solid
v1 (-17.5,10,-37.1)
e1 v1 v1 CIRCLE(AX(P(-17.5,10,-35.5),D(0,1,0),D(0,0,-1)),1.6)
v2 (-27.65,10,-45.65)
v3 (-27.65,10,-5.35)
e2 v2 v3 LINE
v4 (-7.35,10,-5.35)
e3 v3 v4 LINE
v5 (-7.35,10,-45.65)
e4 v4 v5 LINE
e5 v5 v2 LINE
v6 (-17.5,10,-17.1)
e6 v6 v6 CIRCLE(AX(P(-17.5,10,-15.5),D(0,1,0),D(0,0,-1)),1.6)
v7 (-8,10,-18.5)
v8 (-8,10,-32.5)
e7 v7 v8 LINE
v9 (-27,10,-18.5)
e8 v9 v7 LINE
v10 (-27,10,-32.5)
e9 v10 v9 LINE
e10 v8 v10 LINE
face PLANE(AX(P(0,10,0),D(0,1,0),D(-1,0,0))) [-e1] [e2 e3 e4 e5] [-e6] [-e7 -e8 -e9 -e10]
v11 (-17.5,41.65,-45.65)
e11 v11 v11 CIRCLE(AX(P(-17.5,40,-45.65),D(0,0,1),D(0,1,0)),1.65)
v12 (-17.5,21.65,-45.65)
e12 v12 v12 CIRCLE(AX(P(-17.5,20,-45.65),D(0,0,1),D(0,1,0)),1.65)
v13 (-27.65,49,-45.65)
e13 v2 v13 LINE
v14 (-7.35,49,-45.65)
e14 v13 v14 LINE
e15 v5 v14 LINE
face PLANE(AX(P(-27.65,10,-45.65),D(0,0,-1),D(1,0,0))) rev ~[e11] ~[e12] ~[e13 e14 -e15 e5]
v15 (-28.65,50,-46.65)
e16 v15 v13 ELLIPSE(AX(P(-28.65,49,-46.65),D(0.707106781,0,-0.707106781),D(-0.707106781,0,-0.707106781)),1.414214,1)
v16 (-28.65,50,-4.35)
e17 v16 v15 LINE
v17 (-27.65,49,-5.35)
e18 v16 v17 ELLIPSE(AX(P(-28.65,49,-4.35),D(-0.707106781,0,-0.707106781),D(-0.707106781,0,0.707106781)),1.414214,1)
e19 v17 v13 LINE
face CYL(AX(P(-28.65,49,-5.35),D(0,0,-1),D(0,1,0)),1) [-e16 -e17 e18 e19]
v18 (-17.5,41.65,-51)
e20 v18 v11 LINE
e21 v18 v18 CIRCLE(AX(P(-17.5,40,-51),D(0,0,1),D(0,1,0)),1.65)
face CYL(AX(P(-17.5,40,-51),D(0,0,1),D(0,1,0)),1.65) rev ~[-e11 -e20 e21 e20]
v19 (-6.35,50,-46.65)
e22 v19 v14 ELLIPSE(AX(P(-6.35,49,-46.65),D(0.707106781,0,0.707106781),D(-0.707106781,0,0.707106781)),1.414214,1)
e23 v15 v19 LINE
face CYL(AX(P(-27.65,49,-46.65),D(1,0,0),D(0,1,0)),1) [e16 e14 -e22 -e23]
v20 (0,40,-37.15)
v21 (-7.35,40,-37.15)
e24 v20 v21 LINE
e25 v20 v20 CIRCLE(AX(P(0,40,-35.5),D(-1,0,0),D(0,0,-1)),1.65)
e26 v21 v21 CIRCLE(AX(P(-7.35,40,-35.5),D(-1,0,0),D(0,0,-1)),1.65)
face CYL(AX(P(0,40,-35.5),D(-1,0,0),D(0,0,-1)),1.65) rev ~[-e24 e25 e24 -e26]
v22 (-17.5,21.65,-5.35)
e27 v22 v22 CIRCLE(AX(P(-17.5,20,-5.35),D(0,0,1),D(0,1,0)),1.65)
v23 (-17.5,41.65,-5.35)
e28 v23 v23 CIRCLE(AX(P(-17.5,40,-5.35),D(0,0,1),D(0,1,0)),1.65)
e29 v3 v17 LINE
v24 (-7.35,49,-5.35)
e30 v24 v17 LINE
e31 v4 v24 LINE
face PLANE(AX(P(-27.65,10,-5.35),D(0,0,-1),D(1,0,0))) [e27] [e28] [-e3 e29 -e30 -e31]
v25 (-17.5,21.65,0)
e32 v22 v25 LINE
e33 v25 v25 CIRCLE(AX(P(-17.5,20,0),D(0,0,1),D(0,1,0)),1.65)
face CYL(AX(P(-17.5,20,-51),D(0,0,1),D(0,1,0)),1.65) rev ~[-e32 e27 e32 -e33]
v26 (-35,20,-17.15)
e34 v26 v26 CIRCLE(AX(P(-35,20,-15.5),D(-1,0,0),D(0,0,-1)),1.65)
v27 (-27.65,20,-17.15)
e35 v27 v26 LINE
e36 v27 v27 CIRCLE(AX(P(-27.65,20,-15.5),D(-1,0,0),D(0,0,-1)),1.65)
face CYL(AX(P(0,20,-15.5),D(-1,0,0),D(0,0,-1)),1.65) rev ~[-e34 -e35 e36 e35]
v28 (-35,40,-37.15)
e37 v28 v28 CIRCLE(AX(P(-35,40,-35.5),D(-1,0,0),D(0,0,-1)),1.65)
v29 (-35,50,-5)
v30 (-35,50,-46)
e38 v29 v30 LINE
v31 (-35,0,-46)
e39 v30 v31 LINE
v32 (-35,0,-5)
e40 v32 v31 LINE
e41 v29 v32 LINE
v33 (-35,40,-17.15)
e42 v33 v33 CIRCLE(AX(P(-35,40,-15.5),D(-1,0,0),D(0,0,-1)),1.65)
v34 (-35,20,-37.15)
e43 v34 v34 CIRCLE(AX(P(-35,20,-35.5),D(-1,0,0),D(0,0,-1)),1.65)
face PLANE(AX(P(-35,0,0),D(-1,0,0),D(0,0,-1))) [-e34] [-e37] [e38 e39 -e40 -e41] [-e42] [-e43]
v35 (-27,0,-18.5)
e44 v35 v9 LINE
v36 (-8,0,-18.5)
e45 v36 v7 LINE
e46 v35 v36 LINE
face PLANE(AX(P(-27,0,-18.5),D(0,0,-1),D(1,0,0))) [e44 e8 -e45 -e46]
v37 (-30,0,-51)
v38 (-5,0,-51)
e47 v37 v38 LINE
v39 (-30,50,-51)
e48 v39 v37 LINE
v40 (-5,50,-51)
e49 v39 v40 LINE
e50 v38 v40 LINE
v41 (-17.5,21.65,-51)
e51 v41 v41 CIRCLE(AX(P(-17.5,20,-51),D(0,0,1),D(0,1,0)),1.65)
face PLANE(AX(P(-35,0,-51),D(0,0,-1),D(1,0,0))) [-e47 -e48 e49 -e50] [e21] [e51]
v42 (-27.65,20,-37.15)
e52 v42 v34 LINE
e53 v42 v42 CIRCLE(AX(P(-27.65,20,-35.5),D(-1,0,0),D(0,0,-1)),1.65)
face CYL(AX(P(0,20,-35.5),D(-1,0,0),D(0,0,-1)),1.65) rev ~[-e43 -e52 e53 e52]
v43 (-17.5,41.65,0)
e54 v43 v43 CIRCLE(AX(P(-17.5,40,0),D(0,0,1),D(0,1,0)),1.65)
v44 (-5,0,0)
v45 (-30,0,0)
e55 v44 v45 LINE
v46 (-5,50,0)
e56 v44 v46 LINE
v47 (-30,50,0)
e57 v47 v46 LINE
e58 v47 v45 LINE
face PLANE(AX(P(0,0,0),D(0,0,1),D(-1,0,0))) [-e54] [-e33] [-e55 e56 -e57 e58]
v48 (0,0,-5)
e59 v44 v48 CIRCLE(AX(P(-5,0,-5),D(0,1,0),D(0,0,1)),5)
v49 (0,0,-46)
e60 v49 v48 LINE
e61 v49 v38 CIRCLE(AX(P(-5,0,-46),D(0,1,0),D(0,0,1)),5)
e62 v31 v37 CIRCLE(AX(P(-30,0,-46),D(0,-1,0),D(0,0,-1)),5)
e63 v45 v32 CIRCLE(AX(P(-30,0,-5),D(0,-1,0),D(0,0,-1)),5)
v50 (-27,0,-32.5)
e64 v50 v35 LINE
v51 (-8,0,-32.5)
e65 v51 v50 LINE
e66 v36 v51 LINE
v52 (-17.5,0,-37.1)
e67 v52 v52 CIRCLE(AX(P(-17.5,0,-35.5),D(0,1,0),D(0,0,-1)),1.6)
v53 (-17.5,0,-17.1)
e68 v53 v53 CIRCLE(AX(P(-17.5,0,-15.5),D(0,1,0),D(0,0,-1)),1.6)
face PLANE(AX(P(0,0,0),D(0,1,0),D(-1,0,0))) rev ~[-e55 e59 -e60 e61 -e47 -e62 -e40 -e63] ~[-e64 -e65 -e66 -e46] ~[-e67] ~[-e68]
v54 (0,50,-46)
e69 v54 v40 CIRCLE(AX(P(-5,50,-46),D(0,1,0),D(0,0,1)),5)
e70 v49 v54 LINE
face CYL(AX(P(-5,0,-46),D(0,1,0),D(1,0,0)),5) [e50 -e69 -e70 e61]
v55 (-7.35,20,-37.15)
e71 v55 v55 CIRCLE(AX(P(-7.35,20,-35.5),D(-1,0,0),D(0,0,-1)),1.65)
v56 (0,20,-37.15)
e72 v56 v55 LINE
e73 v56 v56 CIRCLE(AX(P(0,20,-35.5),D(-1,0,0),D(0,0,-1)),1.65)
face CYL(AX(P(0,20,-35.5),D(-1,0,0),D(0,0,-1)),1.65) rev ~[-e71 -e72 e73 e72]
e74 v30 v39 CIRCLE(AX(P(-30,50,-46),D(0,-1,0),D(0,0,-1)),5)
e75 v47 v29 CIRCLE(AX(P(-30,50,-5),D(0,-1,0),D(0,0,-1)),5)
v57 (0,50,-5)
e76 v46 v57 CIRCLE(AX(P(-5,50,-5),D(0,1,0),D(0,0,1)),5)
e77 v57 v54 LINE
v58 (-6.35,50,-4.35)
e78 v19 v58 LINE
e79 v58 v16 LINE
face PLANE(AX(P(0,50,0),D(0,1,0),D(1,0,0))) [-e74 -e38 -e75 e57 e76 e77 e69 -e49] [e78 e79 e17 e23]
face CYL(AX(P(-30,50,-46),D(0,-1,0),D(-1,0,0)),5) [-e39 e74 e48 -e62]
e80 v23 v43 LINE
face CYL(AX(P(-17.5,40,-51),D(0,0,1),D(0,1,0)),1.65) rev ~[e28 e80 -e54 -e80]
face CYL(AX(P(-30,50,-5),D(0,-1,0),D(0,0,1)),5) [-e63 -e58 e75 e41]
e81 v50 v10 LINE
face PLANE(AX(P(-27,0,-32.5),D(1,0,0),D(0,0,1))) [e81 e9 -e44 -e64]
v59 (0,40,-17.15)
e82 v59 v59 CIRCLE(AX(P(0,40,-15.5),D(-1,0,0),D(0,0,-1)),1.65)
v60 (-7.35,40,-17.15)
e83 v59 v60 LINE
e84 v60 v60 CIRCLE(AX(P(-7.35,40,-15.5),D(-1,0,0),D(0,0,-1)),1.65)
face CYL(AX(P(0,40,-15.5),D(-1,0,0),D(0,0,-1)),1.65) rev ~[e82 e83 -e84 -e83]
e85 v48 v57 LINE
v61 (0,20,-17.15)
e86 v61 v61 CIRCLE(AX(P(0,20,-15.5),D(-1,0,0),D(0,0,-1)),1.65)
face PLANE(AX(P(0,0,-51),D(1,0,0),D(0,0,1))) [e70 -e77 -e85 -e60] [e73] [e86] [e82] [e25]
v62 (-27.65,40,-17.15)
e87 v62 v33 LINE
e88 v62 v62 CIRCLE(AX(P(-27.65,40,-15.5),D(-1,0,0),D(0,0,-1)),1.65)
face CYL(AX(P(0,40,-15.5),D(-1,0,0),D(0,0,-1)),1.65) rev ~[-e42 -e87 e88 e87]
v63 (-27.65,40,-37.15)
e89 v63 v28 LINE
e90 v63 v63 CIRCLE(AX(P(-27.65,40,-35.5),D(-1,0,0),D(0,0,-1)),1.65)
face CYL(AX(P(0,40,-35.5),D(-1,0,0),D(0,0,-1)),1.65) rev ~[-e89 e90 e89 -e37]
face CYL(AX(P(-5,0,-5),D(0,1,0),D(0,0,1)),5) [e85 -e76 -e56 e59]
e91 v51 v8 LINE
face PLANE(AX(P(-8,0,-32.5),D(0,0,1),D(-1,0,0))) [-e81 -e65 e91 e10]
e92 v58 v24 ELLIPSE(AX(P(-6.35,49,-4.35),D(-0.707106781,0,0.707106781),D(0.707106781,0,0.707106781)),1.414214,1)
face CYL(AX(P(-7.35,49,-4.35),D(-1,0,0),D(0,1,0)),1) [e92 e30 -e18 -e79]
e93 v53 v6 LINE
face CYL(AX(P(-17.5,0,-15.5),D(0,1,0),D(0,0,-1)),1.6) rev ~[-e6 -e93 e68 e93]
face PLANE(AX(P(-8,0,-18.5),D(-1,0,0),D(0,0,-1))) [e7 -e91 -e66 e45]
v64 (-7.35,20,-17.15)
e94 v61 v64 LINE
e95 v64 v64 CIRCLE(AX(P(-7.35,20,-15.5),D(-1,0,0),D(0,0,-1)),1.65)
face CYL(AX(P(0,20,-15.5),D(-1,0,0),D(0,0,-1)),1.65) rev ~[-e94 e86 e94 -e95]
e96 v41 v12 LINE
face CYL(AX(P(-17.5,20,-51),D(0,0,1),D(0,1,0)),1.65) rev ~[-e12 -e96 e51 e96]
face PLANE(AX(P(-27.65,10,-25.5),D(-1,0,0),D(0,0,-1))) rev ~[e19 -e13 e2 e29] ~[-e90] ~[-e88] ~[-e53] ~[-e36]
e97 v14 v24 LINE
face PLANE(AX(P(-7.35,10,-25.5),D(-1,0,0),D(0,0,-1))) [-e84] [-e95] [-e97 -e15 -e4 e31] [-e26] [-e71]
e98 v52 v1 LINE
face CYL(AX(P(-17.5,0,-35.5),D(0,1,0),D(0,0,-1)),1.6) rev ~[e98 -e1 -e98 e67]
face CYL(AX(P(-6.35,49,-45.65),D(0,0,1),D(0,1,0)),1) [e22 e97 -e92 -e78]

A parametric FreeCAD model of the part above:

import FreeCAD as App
import Part
import Sketcher
from FreeCAD import Vector


def edges_at(feature, points):
    """Names of the edges that pass closest to the given points."""
    edges = feature.Shape.Edges
    near = lambda p: min(range(len(edges)), key=lambda i: edges[i].distToShape(Part.Vertex(*p))[0])
    return sorted({f"Edge{near(p) + 1}" for p in points})


def add_polygon(sketch, points):
    """Adds a closed chain of lines whose ends are joined by coincident constraints."""
    first, n = sketch.GeometryCount, len(points)
    for a, b in zip(points, points[1:] + points[:1]):
        sketch.addGeometry(Part.LineSegment(App.Vector(*a, 0), App.Vector(*b, 0)), False)
    for i in range(n):
        sketch.addConstraint(Sketcher.Constraint("Coincident", first + i, 2, first + (i + 1) % n, 1))

doc = App.newDocument("Part")
params = doc.addObject("Spreadsheet::Sheet", "Params")
for row, (alias, value) in enumerate([
    ("sketch1_width", "35 mm"),
    ("sketch1_height", "51 mm"),
    ("pad1_length", "10 mm"),
    ("sketch2_width", "35 mm"),
    ("sketch2_height", "51 mm"),
    ("sketch2_width2", "20.3 mm"),
    ("sketch2_height2", "40.3 mm"),
    ("pad2_length", "40 mm"),
    ("fillet_radius", "5 mm"),
    ("sketch3_diameter", "3.3 mm"),
    ("hole_diameter", "3.3 mm"),
    ("sketch4_diameter", "3.3 mm"),
    ("hole2_diameter", "3.3 mm"),
    ("sketch5_diameter", "3.2 mm"),
    ("hole3_diameter", "3.2 mm"),
    ("fillet2_radius", "1 mm"),
    ("sketch6_width", "19 mm"),
    ("sketch6_height", "14 mm"),
    ("pocket1_length", "10 mm"),
], start=1):
    params.set(f"A{row}", alias)
    params.set(f"B{row}", "=" + value)
    params.setAlias(f"B{row}", alias)

body = doc.addObject("PartDesign::Body", "Body")

sketch1 = body.newObject("Sketcher::SketchObject", "Sketch")
sketch1.AttachmentSupport = (doc.getObject("XZ_Plane"), [""])
sketch1.MapMode = "FlatFace"
add_polygon(sketch1, [(-35, 0), (0, 0), (0, -51), (-35, -51)])
sketch1.addConstraint(Sketcher.Constraint("Horizontal", 0))
sketch1.addConstraint(Sketcher.Constraint("Vertical", 1))
sketch1.addConstraint(Sketcher.Constraint("Horizontal", 2))
sketch1.addConstraint(Sketcher.Constraint("Vertical", 3))
sketch1.addConstraint(Sketcher.Constraint("Coincident", 0, 2, -1, 1))
sketch1.addConstraint(Sketcher.Constraint("DistanceX", 0, 1, 0, 2, 35.0))
sketch1.addConstraint(Sketcher.Constraint("DistanceY", 1, 2, 1, 1, 51.0))
sketch1.setExpression("Constraints[9]", "Params.sketch1_width")
sketch1.setExpression("Constraints[10]", "Params.sketch1_height")
pad1 = body.newObject("PartDesign::Pad", "Pad")
pad1.Profile = sketch1
pad1.setExpression("Length", "Params.pad1_length")
pad1.Reversed = True

sketch2 = body.newObject("Sketcher::SketchObject", "Sketch001")
sketch2.AttachmentSupport = (doc.getObject("XZ_Plane"), [""])
sketch2.MapMode = "FlatFace"
sketch2.AttachmentOffset = App.Placement(Vector(0, 0, -10), App.Rotation())
add_polygon(sketch2, [(-35, -51), (-35, 0), (0, 0), (0, -51)])
add_polygon(sketch2, [(-27.65, -45.65), (-7.35, -45.65), (-7.35, -5.35), (-27.65, -5.35)])
sketch2.addConstraint(Sketcher.Constraint("Vertical", 0))
sketch2.addConstraint(Sketcher.Constraint("Horizontal", 1))
sketch2.addConstraint(Sketcher.Constraint("Vertical", 2))
sketch2.addConstraint(Sketcher.Constraint("Horizontal", 3))
sketch2.addConstraint(Sketcher.Constraint("Horizontal", 4))
sketch2.addConstraint(Sketcher.Constraint("Vertical", 5))
sketch2.addConstraint(Sketcher.Constraint("Horizontal", 6))
sketch2.addConstraint(Sketcher.Constraint("Vertical", 7))
sketch2.addConstraint(Sketcher.Constraint("Coincident", 1, 2, -1, 1))
sketch2.addConstraint(Sketcher.Constraint("DistanceX", 1, 1, 1, 2, 35.0))
sketch2.addConstraint(Sketcher.Constraint("DistanceY", 0, 1, 0, 2, 51.0))
sketch2.addConstraint(Sketcher.Constraint("DistanceX", 4, 1, 4, 2, 20.3))
sketch2.addConstraint(Sketcher.Constraint("DistanceY", 5, 1, 5, 2, 40.3))
sketch2.addConstraint(Sketcher.Constraint("DistanceX", 4, 2, -1, 1, 7.35))
sketch2.addConstraint(Sketcher.Constraint("DistanceY", 4, 2, -1, 1, 45.65))
sketch2.setExpression("Constraints[17]", "Params.sketch2_width")
sketch2.setExpression("Constraints[18]", "Params.sketch2_height")
sketch2.setExpression("Constraints[19]", "Params.sketch2_width2")
sketch2.setExpression("Constraints[20]", "Params.sketch2_height2")
pad2 = body.newObject("PartDesign::Pad", "Pad001")
pad2.Profile = sketch2
pad2.setExpression("Length", "Params.pad2_length")
pad2.Reversed = True
doc.recompute()

fillet = body.newObject("PartDesign::Fillet", "Fillet")
fillet.Base = (pad2, edges_at(pad2, [
    (0, 25, 0),
    (0, 25, -51),
    (-35, 25, -51),
    (-35, 25, 0),
]))
fillet.setExpression("Radius", "Params.fillet_radius")

sketch3 = body.newObject("Sketcher::SketchObject", "Sketch002")
sketch3.AttachmentSupport = (doc.getObject("YZ_Plane"), [""])
sketch3.MapMode = "FlatFace"
sketch3.addGeometry(Part.Circle(Vector(20, -15.5, 0), Vector(0, 0, 1), 1.65), False)
sketch3.addGeometry(Part.Circle(Vector(40, -15.5, 0), Vector(0, 0, 1), 1.65), False)
sketch3.addGeometry(Part.Circle(Vector(40, -35.5, 0), Vector(0, 0, 1), 1.65), False)
sketch3.addGeometry(Part.Circle(Vector(20, -35.5, 0), Vector(0, 0, 1), 1.65), False)
sketch3.addConstraint(Sketcher.Constraint("Equal", 0, 1))
sketch3.addConstraint(Sketcher.Constraint("Equal", 1, 2))
sketch3.addConstraint(Sketcher.Constraint("Equal", 2, 3))
sketch3.addConstraint(Sketcher.Constraint("Horizontal", 0, 3, 1, 3))
sketch3.addConstraint(Sketcher.Constraint("Horizontal", 2, 3, 3, 3))
sketch3.addConstraint(Sketcher.Constraint("Vertical", 1, 3, 2, 3))
sketch3.addConstraint(Sketcher.Constraint("Vertical", 0, 3, 3, 3))
sketch3.addConstraint(Sketcher.Constraint("Diameter", 0, 3.3))
sketch3.addConstraint(Sketcher.Constraint("DistanceX", -1, 1, 0, 3, 20.0))
sketch3.addConstraint(Sketcher.Constraint("DistanceX", -1, 1, 1, 3, 40.0))
sketch3.addConstraint(Sketcher.Constraint("DistanceY", 2, 3, 1, 3, 20.0))
sketch3.addConstraint(Sketcher.Constraint("DistanceY", 0, 3, -1, 1, 15.5))
sketch3.setExpression("Constraints[7]", "Params.sketch3_diameter")
doc.recompute()
hole = body.newObject("PartDesign::Hole", "Hole")
hole.Profile = sketch3
hole.ThreadType = "None"
hole.setExpression("Diameter", "Params.hole_diameter")
hole.DepthType = "ThroughAll"

sketch4 = body.newObject("Sketcher::SketchObject", "Sketch003")
sketch4.AttachmentSupport = (doc.getObject("XY_Plane"), [""])
sketch4.MapMode = "FlatFace"
sketch4.AttachmentOffset = App.Placement(Vector(0, 0, -51), App.Rotation())
sketch4.addGeometry(Part.Circle(Vector(-17.5, 20, 0), Vector(0, 0, 1), 1.65), False)
sketch4.addGeometry(Part.Circle(Vector(-17.5, 40, 0), Vector(0, 0, 1), 1.65), False)
sketch4.addConstraint(Sketcher.Constraint("Equal", 0, 1))
sketch4.addConstraint(Sketcher.Constraint("Vertical", 0, 3, 1, 3))
sketch4.addConstraint(Sketcher.Constraint("Diameter", 0, 3.3))
sketch4.addConstraint(Sketcher.Constraint("DistanceY", -1, 1, 0, 3, 20.0))
sketch4.addConstraint(Sketcher.Constraint("DistanceY", -1, 1, 1, 3, 40.0))
sketch4.addConstraint(Sketcher.Constraint("DistanceX", 0, 3, -1, 1, 17.5))
sketch4.setExpression("Constraints[2]", "Params.sketch4_diameter")
doc.recompute()
hole2 = body.newObject("PartDesign::Hole", "Hole001")
hole2.Profile = sketch4
hole2.ThreadType = "None"
hole2.setExpression("Diameter", "Params.hole2_diameter")
hole2.DepthType = "ThroughAll"
hole2.Reversed = True

sketch5 = body.newObject("Sketcher::SketchObject", "Sketch004")
sketch5.AttachmentSupport = (doc.getObject("XZ_Plane"), [""])
sketch5.MapMode = "FlatFace"
sketch5.addGeometry(Part.Circle(Vector(-17.5, -15.5, 0), Vector(0, 0, 1), 1.6), False)
sketch5.addGeometry(Part.Circle(Vector(-17.5, -35.5, 0), Vector(0, 0, 1), 1.6), False)
sketch5.addConstraint(Sketcher.Constraint("Equal", 0, 1))
sketch5.addConstraint(Sketcher.Constraint("Vertical", 0, 3, 1, 3))
sketch5.addConstraint(Sketcher.Constraint("Diameter", 0, 3.2))
sketch5.addConstraint(Sketcher.Constraint("DistanceY", 1, 3, 0, 3, 20.0))
sketch5.addConstraint(Sketcher.Constraint("DistanceX", 0, 3, -1, 1, 17.5))
sketch5.addConstraint(Sketcher.Constraint("DistanceY", 0, 3, -1, 1, 15.5))
sketch5.setExpression("Constraints[2]", "Params.sketch5_diameter")
doc.recompute()
hole3 = body.newObject("PartDesign::Hole", "Hole002")
hole3.Profile = sketch5
hole3.ThreadType = "None"
hole3.setExpression("Diameter", "Params.hole3_diameter")
hole3.DepthType = "ThroughAll"
doc.recompute()

fillet2 = body.newObject("PartDesign::Fillet", "Fillet001")
fillet2.Base = (hole3, edges_at(hole3, [
    (-7.35, 50, -25.5),
    (-17.5, 50, -5.35),
    (-27.65, 50, -25.5),
    (-17.5, 50, -45.65),
]))
fillet2.setExpression("Radius", "Params.fillet2_radius")

sketch6 = body.newObject("Sketcher::SketchObject", "Sketch005")
sketch6.AttachmentSupport = (doc.getObject("XZ_Plane"), [""])
sketch6.MapMode = "FlatFace"
add_polygon(sketch6, [(-8, -18.5), (-27, -18.5), (-27, -32.5), (-8, -32.5)])
sketch6.addConstraint(Sketcher.Constraint("Horizontal", 0))
sketch6.addConstraint(Sketcher.Constraint("Vertical", 1))
sketch6.addConstraint(Sketcher.Constraint("Horizontal", 2))
sketch6.addConstraint(Sketcher.Constraint("Vertical", 3))
sketch6.addConstraint(Sketcher.Constraint("DistanceX", 2, 2, -1, 1, 8.0))
sketch6.addConstraint(Sketcher.Constraint("DistanceX", 0, 2, 0, 1, 19.0))
sketch6.addConstraint(Sketcher.Constraint("DistanceY", 1, 2, 1, 1, 14.0))
sketch6.addConstraint(Sketcher.Constraint("DistanceY", 0, 2, -1, 1, 18.5))
sketch6.setExpression("Constraints[9]", "Params.sketch6_width")
sketch6.setExpression("Constraints[10]", "Params.sketch6_height")
pocket1 = body.newObject("PartDesign::Pocket", "Pocket")
pocket1.Profile = sketch6
pocket1.setExpression("Length", "Params.pocket1_length")

doc.recompute()
